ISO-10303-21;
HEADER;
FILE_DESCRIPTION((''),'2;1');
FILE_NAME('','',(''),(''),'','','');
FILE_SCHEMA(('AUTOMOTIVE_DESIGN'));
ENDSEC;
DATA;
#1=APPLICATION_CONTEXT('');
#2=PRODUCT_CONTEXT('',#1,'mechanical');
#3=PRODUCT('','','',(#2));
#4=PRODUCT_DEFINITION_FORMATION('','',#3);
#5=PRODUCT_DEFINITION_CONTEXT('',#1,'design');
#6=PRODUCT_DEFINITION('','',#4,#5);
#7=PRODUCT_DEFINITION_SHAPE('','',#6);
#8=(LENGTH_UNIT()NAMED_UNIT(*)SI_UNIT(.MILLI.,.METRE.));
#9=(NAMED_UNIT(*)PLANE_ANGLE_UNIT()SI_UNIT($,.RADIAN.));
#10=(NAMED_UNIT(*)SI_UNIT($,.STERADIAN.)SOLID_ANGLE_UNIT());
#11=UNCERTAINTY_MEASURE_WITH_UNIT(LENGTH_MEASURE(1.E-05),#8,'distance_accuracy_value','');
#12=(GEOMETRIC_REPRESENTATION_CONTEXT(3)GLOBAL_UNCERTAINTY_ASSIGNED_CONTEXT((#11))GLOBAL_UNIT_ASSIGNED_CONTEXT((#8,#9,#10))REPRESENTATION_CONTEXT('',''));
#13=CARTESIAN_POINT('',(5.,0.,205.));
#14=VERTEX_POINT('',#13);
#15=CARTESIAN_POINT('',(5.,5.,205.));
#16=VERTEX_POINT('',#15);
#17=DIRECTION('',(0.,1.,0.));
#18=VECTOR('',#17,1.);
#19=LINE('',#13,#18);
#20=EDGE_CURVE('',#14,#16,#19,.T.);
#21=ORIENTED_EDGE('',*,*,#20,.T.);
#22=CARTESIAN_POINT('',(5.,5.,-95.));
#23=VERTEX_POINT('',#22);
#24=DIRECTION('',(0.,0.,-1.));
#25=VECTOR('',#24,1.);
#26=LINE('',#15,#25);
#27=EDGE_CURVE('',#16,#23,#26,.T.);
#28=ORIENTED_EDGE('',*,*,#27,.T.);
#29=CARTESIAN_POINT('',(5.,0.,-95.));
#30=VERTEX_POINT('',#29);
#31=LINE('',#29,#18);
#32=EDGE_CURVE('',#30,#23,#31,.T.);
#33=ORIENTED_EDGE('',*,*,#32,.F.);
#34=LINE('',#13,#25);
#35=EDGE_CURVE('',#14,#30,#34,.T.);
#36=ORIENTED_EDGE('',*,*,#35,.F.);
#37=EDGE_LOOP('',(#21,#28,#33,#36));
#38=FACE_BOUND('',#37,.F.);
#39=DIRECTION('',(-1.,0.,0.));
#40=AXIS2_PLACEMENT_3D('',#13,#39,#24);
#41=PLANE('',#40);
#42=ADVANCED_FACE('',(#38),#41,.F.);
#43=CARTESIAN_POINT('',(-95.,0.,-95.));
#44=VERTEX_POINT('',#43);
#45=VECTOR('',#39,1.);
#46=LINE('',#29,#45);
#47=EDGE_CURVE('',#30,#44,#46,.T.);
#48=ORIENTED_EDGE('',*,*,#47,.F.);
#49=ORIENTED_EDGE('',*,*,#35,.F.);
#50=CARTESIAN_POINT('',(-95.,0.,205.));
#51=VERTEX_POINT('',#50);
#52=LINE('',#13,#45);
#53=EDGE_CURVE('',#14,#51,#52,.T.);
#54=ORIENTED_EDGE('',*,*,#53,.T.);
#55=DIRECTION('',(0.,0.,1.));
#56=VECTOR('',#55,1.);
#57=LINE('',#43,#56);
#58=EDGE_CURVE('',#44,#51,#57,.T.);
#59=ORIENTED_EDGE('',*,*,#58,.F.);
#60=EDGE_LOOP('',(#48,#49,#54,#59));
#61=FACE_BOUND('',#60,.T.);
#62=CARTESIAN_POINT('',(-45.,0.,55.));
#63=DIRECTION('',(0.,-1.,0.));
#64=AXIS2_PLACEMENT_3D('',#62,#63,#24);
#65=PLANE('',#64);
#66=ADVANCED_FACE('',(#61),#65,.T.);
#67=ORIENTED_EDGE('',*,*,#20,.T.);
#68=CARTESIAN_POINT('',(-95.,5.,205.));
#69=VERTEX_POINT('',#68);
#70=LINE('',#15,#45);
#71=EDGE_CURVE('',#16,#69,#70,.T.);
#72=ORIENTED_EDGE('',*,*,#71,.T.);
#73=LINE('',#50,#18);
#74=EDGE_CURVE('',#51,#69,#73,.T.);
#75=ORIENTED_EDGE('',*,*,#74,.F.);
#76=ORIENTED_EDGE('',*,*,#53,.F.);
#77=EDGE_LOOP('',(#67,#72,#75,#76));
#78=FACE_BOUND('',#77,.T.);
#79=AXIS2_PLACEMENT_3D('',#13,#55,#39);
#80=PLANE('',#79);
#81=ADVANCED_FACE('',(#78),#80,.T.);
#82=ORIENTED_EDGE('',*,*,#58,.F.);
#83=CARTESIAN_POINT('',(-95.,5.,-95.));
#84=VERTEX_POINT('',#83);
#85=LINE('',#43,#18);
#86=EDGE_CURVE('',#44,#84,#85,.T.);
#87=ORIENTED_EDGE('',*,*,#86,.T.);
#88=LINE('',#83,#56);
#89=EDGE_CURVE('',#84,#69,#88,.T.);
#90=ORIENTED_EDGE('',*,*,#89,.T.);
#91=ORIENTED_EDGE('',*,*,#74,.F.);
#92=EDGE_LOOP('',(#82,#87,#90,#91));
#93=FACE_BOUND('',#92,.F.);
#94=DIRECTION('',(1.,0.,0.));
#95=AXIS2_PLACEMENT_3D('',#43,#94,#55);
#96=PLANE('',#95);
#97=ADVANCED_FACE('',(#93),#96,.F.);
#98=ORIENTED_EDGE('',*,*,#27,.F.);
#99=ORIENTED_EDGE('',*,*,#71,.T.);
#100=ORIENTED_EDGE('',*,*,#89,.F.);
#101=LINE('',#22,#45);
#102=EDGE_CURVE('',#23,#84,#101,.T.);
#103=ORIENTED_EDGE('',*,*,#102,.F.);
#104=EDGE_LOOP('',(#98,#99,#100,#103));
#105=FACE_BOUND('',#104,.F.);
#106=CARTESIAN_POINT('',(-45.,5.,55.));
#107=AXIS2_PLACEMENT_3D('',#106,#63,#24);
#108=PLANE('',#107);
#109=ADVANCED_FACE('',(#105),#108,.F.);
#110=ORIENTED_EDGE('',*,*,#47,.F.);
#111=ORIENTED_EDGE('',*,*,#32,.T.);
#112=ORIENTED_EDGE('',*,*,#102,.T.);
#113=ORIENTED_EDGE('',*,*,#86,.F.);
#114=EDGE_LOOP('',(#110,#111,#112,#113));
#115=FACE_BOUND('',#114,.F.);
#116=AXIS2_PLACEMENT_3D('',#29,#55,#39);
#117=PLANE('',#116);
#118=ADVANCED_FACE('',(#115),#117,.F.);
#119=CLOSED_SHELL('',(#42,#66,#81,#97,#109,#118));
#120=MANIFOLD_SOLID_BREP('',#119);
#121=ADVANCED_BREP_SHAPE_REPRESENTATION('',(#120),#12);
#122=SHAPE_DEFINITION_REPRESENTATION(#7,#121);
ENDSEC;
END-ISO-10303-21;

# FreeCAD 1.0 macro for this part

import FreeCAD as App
import Part
import Sketcher
Q = App.Units.Quantity

doc = App.newDocument("Part")
body = doc.addObject("PartDesign::Body", "Body")

# Sketch on XZ plane
sketch1 = doc.addObject("Sketcher::SketchObject", "Sketch")
body.addObject(sketch1)
sketch1.AttachmentSupport = (doc.XZ_Plane, [""])
sketch1.MapMode = "FlatFace"
sketch1.addGeometry([
    Part.LineSegment(App.Vector(-95, 205, 0), App.Vector(5, 205, 0)),
    Part.LineSegment(App.Vector(5, 205, 0), App.Vector(5, -95, 0)),
    Part.LineSegment(App.Vector(5, -95, 0), App.Vector(-95, -95, 0)),
    Part.LineSegment(App.Vector(-95, -95, 0), App.Vector(-95, 205, 0)),
], False)
sketch1.addConstraint([
    Sketcher.Constraint("Coincident", 0, 2, 1, 1),
    Sketcher.Constraint("Coincident", 1, 2, 2, 1),
    Sketcher.Constraint("Coincident", 2, 2, 3, 1),
    Sketcher.Constraint("Coincident", 3, 2, 0, 1),
    Sketcher.Constraint("Horizontal", 0),
    Sketcher.Constraint("Vertical", 1),
    Sketcher.Constraint("Horizontal", 2),
    Sketcher.Constraint("Vertical", 3),
    Sketcher.Constraint("DistanceX", 0, 1, 0, 2, Q("100 mm")),
    Sketcher.Constraint("DistanceY", 1, 2, 1, 1, Q("300 mm")),
    Sketcher.Constraint("DistanceX", -1, 1, 0, 2, Q("5 mm")),
    Sketcher.Constraint("DistanceY", -1, 1, 0, 2, Q("205 mm")),
])
pad1 = doc.addObject("PartDesign::Pad", "Pad")
body.addObject(pad1)
pad1.Profile = sketch1
pad1.Length = 5
pad1.Reversed = True

doc.recompute()
